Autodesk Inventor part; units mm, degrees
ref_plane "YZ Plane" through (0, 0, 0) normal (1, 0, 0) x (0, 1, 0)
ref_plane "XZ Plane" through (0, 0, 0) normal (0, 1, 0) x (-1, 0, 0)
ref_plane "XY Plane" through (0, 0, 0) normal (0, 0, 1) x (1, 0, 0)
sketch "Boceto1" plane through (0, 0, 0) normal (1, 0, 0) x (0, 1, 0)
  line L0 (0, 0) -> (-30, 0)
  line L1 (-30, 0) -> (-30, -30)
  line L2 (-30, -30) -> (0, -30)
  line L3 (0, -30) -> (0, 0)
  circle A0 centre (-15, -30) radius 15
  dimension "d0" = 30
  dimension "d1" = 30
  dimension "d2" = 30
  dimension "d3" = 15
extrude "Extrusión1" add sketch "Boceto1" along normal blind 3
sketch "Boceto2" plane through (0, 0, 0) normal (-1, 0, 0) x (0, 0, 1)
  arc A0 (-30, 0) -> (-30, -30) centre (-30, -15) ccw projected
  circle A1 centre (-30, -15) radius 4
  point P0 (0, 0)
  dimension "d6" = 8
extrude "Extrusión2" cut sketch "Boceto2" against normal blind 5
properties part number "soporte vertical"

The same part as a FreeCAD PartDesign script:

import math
import FreeCAD as App
import Part
import Sketcher
from FreeCAD import Vector

doc = App.newDocument("Part")
body = doc.addObject("PartDesign::Body", "Body")

sketch1 = doc.addObject("Sketcher::SketchObject", "Sketch")
body.addObject(sketch1)
sketch1.AttachmentSupport = (doc.YZ_Plane, [""])
sketch1.MapMode = "FlatFace"
sketch1.addGeometry([
    Part.LineSegment(Vector(0, -30, 0), Vector(0, 0, 0)),
    Part.LineSegment(Vector(0, 0, 0), Vector(-30, 0, 0)),
    Part.LineSegment(Vector(-30, 0, 0), Vector(-30, -30, 0)),
    Part.ArcOfCircle(Part.Circle(Vector(-15, -30, 0), Vector(0, 0, 1), 15), math.radians(180), math.radians(360)),
], False)
sketch1.addConstraint([
    Sketcher.Constraint("Coincident", 0, 2, 1, 1),
    Sketcher.Constraint("Coincident", 1, 2, 2, 1),
    Sketcher.Constraint("Tangent", 2, 2, 3, 1),
    Sketcher.Constraint("Tangent", 3, 2, 0, 1),
    Sketcher.Constraint("Vertical", 0),
    Sketcher.Constraint("Horizontal", 1),
    Sketcher.Constraint("Vertical", 2),
    Sketcher.Constraint("Coincident", 0, 2, -1, 1),
    Sketcher.Constraint("Equal", 1, 0),
    Sketcher.Constraint("Radius", 3, 15.0),
])
pad1 = doc.addObject("PartDesign::Pad", "Pad")
body.addObject(pad1)
pad1.Profile = sketch1
pad1.Length = 3

sketch2 = doc.addObject("Sketcher::SketchObject", "Sketch001")
body.addObject(sketch2)
sketch2.AttachmentSupport = (doc.YZ_Plane, [""])
sketch2.MapMode = "FlatFace"
sketch2.addGeometry(Part.Circle(Vector(-15, -30, 0), Vector(0, 0, 1), 4), False)
sketch2.addConstraint([
    Sketcher.Constraint("Diameter", 0, 8.0),
    Sketcher.Constraint("DistanceX", 0, 3, -1, 1, 15.0),
    Sketcher.Constraint("DistanceY", 0, 3, -1, 1, 30.0),
])
pocket1 = doc.addObject("PartDesign::Pocket", "Pocket")
body.addObject(pocket1)
pocket1.Profile = sketch2
pocket1.Length = 5
pocket1.Reversed = True

doc.recompute()
